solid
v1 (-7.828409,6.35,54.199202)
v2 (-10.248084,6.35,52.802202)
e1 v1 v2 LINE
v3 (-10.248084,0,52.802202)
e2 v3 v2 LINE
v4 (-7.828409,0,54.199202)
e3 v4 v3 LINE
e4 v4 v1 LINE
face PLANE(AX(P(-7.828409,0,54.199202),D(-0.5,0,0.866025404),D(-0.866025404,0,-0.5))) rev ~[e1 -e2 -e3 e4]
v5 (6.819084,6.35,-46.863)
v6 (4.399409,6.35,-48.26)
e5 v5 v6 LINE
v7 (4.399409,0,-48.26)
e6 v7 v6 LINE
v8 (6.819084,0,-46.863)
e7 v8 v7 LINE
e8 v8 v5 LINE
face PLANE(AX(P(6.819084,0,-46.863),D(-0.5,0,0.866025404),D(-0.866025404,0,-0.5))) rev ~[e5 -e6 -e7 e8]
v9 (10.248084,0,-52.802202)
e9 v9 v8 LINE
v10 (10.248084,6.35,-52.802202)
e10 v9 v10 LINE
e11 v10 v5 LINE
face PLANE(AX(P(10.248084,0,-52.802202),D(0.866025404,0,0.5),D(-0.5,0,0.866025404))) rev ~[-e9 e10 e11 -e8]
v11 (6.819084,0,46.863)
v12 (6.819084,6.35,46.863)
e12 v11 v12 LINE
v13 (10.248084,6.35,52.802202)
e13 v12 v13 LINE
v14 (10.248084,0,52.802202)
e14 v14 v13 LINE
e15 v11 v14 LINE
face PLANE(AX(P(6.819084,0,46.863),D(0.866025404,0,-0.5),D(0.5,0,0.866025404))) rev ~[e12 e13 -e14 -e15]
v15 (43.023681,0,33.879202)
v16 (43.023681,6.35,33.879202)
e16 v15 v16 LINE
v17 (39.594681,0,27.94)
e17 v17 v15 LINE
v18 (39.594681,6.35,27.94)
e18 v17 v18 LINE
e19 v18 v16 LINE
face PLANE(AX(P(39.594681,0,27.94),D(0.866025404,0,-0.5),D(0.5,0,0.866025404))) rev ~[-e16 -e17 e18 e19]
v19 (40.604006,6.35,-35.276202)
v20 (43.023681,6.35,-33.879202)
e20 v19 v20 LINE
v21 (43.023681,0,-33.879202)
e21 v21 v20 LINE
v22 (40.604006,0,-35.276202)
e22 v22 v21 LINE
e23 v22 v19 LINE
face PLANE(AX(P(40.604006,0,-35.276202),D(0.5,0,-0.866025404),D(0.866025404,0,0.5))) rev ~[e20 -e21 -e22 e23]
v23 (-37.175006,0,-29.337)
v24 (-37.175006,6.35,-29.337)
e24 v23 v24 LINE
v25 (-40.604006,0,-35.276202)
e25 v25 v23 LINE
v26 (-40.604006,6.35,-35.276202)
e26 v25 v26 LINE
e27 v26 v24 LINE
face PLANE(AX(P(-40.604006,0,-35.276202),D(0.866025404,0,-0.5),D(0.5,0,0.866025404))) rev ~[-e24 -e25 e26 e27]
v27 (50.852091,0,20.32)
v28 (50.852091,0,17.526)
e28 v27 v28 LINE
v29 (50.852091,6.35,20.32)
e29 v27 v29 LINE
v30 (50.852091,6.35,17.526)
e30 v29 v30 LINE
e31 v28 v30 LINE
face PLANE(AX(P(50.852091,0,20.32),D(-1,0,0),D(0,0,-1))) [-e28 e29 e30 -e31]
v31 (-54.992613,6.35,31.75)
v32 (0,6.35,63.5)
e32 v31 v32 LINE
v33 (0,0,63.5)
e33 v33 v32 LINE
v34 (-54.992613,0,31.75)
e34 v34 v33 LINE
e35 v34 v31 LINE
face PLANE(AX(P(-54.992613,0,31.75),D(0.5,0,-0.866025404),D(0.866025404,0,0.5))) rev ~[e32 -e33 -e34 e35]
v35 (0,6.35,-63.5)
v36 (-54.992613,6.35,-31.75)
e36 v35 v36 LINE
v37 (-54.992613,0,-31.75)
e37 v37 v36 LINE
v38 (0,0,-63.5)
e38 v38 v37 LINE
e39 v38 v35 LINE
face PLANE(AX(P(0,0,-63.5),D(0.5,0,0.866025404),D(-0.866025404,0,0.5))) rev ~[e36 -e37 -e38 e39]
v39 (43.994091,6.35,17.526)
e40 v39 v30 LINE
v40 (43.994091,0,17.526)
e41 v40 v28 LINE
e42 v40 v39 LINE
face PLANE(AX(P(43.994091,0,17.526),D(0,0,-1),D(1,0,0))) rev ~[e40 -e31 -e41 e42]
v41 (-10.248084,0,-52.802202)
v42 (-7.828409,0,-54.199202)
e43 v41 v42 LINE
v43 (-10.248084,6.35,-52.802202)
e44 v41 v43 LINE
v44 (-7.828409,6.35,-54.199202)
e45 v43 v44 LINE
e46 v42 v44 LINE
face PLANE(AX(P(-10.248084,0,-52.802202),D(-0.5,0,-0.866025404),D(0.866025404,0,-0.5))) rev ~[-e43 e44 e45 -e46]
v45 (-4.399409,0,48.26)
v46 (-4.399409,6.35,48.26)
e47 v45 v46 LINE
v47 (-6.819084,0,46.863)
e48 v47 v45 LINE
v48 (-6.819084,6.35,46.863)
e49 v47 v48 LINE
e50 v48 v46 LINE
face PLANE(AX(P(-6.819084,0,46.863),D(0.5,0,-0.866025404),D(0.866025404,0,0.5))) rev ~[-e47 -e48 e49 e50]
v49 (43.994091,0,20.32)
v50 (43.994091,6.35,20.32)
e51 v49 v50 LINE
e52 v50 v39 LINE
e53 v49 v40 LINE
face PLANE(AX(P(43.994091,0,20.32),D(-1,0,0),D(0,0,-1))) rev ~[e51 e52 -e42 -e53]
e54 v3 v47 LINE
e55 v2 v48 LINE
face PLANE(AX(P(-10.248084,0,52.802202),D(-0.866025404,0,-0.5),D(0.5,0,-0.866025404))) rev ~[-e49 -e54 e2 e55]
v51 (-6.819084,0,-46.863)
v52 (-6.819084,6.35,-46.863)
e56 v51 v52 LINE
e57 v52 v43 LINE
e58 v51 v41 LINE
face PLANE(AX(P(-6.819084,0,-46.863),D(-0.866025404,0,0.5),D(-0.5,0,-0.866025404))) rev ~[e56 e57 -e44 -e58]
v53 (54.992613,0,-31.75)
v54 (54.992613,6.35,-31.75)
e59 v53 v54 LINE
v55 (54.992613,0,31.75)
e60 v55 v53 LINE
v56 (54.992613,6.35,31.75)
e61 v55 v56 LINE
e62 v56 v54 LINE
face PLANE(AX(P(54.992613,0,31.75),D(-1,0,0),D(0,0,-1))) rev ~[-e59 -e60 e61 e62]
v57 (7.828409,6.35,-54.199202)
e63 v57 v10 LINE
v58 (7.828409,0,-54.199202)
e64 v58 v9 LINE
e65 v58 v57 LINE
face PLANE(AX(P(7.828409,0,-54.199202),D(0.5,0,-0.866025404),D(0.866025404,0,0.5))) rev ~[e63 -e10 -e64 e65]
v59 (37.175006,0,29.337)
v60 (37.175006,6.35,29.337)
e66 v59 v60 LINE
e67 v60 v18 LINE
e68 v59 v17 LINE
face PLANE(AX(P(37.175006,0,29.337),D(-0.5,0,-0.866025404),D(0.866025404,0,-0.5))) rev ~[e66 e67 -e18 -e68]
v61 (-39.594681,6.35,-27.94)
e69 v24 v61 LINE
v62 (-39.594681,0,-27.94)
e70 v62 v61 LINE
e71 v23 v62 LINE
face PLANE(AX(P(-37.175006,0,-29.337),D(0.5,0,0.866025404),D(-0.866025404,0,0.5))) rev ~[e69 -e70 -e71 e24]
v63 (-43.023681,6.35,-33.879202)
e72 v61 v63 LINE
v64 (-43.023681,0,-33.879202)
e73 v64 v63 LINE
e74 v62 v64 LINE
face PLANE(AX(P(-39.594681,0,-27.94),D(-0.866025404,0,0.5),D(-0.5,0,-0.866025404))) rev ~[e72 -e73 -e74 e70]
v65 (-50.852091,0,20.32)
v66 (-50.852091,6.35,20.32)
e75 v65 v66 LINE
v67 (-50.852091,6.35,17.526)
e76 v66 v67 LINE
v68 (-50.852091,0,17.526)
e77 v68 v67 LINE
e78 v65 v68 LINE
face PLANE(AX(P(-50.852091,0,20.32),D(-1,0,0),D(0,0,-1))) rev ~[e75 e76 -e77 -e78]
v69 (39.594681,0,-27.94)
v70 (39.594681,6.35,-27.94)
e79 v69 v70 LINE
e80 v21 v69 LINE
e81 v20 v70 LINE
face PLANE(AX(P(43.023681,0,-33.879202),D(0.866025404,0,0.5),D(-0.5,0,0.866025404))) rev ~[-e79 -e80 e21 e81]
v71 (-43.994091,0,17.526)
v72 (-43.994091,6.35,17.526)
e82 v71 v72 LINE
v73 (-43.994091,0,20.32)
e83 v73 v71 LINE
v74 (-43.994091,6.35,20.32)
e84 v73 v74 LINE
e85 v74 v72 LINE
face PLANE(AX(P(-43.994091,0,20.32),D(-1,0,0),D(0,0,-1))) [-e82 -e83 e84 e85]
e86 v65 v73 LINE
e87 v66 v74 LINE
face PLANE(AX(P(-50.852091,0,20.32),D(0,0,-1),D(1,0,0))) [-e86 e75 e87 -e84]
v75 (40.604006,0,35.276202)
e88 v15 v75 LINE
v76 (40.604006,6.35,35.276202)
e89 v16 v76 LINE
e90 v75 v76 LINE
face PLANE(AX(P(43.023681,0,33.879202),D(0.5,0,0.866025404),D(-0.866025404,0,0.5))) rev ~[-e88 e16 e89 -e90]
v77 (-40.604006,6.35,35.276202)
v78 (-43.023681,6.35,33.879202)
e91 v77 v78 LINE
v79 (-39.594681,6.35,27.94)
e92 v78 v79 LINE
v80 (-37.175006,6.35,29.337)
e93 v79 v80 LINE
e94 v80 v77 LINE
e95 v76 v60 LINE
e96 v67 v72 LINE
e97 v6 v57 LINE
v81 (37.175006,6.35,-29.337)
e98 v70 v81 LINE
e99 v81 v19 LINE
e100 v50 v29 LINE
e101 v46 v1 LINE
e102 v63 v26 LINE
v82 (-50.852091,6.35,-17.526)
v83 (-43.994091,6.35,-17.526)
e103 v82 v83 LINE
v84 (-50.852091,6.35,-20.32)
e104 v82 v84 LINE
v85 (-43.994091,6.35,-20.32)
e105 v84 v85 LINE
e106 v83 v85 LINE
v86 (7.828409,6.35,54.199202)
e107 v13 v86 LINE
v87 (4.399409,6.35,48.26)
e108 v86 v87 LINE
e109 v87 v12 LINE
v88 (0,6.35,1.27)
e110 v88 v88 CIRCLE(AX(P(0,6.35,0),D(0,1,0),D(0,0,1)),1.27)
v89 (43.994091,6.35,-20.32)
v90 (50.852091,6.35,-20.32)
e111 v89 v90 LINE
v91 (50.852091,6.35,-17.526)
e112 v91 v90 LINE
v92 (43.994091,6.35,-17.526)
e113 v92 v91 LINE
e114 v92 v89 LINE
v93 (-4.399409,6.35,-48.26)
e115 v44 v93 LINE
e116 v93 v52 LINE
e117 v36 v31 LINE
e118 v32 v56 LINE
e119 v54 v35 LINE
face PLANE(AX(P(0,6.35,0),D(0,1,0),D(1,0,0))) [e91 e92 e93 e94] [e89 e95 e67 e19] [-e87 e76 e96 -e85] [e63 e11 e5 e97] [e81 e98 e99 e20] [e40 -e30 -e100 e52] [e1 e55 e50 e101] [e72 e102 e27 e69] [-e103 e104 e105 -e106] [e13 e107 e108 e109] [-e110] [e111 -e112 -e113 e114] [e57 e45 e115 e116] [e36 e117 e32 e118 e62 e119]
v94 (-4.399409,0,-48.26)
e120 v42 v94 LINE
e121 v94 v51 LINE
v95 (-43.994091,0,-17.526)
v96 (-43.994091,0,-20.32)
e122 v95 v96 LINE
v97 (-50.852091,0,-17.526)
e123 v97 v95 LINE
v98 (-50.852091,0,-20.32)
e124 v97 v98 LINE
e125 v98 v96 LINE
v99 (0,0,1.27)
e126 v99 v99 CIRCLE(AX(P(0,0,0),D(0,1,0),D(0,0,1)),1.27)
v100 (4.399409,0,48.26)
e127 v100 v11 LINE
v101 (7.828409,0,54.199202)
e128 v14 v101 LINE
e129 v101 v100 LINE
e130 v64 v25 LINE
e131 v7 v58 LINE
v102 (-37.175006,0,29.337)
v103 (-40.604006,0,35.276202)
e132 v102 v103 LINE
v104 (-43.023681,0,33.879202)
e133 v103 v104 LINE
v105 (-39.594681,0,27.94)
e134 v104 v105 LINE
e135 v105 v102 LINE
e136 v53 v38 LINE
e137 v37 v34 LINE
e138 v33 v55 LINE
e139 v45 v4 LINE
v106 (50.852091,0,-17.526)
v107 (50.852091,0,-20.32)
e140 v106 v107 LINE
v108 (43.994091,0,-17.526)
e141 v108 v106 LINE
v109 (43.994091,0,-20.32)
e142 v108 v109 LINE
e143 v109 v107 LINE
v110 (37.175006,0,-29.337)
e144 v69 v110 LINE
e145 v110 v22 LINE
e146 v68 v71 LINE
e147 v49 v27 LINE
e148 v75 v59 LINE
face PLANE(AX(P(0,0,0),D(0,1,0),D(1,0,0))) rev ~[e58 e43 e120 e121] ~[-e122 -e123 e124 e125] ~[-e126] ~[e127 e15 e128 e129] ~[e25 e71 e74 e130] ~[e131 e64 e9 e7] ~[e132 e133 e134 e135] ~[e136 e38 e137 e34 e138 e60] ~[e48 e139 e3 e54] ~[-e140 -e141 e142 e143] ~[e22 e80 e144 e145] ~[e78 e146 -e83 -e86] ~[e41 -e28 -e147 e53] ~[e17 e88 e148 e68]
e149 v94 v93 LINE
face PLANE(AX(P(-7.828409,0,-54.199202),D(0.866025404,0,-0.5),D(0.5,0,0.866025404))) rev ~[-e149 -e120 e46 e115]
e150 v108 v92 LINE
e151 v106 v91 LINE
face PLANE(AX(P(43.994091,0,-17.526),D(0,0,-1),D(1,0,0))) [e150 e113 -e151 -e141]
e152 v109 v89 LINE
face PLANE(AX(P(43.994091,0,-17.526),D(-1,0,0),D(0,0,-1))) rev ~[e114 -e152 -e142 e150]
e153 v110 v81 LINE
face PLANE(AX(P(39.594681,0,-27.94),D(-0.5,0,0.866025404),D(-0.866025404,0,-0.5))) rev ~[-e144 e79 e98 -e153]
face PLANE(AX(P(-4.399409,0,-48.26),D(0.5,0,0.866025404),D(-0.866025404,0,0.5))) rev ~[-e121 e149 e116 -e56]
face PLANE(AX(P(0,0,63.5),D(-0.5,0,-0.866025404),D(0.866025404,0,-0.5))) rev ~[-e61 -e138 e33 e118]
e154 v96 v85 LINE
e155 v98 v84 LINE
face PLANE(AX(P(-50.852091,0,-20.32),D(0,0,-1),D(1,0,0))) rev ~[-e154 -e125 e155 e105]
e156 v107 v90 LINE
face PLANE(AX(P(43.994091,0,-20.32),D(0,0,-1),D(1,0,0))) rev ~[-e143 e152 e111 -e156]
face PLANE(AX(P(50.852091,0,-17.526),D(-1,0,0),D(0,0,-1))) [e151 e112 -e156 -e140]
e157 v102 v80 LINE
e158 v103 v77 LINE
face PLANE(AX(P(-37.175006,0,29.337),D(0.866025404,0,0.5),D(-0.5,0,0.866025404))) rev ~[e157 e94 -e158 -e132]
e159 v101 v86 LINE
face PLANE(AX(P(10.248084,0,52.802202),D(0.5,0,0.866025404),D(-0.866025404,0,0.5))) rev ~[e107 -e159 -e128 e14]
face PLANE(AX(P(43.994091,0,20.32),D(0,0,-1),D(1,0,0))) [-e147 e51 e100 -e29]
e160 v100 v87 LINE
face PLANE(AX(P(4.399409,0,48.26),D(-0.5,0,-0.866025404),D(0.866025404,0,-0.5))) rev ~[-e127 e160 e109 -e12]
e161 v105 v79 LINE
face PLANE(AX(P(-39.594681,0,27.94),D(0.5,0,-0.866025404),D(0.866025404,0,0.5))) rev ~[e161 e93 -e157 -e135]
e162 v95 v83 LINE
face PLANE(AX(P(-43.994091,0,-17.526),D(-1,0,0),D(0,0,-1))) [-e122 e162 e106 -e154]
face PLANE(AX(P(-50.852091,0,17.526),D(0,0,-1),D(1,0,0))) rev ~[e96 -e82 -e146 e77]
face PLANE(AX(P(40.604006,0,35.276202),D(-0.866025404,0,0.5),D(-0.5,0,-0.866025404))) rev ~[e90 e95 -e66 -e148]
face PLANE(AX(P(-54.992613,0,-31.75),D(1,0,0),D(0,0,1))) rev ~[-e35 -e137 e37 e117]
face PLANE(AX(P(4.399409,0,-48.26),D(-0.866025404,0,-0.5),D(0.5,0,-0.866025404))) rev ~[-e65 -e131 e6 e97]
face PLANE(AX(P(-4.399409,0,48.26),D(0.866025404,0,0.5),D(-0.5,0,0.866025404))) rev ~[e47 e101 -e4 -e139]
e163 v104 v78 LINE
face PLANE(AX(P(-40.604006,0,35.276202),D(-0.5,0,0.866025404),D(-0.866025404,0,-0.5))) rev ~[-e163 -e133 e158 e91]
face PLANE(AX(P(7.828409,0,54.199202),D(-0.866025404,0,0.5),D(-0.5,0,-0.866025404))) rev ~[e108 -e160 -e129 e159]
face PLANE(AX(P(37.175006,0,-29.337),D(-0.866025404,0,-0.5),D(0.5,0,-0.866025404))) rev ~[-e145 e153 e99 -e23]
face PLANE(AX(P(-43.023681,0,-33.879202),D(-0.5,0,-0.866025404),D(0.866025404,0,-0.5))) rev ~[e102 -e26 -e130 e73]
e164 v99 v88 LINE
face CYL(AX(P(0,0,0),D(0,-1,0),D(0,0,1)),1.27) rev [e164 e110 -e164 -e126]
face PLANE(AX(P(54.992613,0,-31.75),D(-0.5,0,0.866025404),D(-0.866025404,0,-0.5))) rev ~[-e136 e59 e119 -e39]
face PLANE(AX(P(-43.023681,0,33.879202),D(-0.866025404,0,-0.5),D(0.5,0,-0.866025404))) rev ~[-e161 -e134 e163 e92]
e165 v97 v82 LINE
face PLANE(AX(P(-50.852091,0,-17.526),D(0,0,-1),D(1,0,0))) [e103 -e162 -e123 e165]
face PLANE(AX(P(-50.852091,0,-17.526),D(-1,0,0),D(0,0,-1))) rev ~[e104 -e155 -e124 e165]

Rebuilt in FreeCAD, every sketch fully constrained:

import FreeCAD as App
import Part
import Sketcher
Q = App.Units.Quantity


def add_polygon(sketch, points):
    """Adds a closed chain of lines whose ends are joined by coincident constraints."""
    first, n = sketch.GeometryCount, len(points)
    for a, b in zip(points, points[1:] + points[:1]):
        sketch.addGeometry(Part.LineSegment(App.Vector(*a, 0), App.Vector(*b, 0)), False)
    for i in range(n):
        sketch.addConstraint(Sketcher.Constraint("Coincident", first + i, 2, first + (i + 1) % n, 1))

doc = App.newDocument("Part")
body = doc.addObject("PartDesign::Body", "Body")

sketch1 = doc.addObject("Sketcher::SketchObject", "Sketch")
body.addObject(sketch1)
sketch1.AttachmentSupport = (doc.XZ_Plane, [""])
sketch1.MapMode = "FlatFace"
add_polygon(sketch1, [(55, 31.8), (55, -31.8), (0, -63.5), (-55, -31.8), (-55, 31.8), (0, 63.5)])
add_polygon(sketch1, [(-43, 33.9), (-39.6, 27.9), (-37.2, 29.3), (-40.6, 35.3)])
add_polygon(sketch1, [(-10.2, 52.8), (-6.8, 46.9), (-4.4, 48.3), (-7.8, 54.2)])
add_polygon(sketch1, [(-44, 20.3), (-50.9, 20.3), (-50.9, 17.5), (-44, 17.5)])
add_polygon(sketch1, [(7.8, 54.2), (4.4, 48.3), (6.8, 46.9), (10.2, 52.8)])
add_polygon(sketch1, [(40.6, 35.3), (37.2, 29.3), (39.6, 27.9), (43, 33.9)])
add_polygon(sketch1, [(50.9, 20.3), (44, 20.3), (44, 17.5), (50.9, 17.5)])
add_polygon(sketch1, [(-44, -17.5), (-50.9, -17.5), (-50.9, -20.3), (-44, -20.3)])
sketch1.addGeometry(Part.Circle(App.Vector(0, 0, 0), App.Vector(0, 0, 1), 1.3), False)
add_polygon(sketch1, [(-40.6, -35.3), (-37.2, -29.3), (-39.6, -27.9), (-43, -33.9)])
add_polygon(sketch1, [(-7.8, -54.2), (-4.4, -48.3), (-6.8, -46.9), (-10.2, -52.8)])
add_polygon(sketch1, [(50.9, -17.5), (44, -17.5), (44, -20.3), (50.9, -20.3)])
add_polygon(sketch1, [(10.2, -52.8), (6.8, -46.9), (4.4, -48.3), (7.8, -54.2)])
add_polygon(sketch1, [(43, -33.9), (39.6, -27.9), (37.2, -29.3), (40.6, -35.3)])
sketch1.addConstraint(Sketcher.Constraint("Vertical", 0))
sketch1.addConstraint(Sketcher.Constraint("Vertical", 3))
sketch1.addConstraint(Sketcher.Constraint("Horizontal", 14))
sketch1.addConstraint(Sketcher.Constraint("Vertical", 15))
sketch1.addConstraint(Sketcher.Constraint("Horizontal", 16))
sketch1.addConstraint(Sketcher.Constraint("Vertical", 17))
sketch1.addConstraint(Sketcher.Constraint("Horizontal", 26))
sketch1.addConstraint(Sketcher.Constraint("Vertical", 27))
sketch1.addConstraint(Sketcher.Constraint("Horizontal", 28))
sketch1.addConstraint(Sketcher.Constraint("Vertical", 29))
sketch1.addConstraint(Sketcher.Constraint("Horizontal", 30))
sketch1.addConstraint(Sketcher.Constraint("Vertical", 31))
sketch1.addConstraint(Sketcher.Constraint("Horizontal", 32))
sketch1.addConstraint(Sketcher.Constraint("Vertical", 33))
sketch1.addConstraint(Sketcher.Constraint("Horizontal", 43))
sketch1.addConstraint(Sketcher.Constraint("Vertical", 44))
sketch1.addConstraint(Sketcher.Constraint("Horizontal", 45))
sketch1.addConstraint(Sketcher.Constraint("Vertical", 46))
sketch1.addConstraint(Sketcher.Constraint("Coincident", 34, 3, -1, 1))
sketch1.addConstraint(Sketcher.Constraint("Symmetric", 0, 2, 3, 2, -1, 1))
sketch1.addConstraint(Sketcher.Constraint("Symmetric", 1, 2, 4, 2, -1, 1))
sketch1.addConstraint(Sketcher.Constraint("Symmetric", 28, 2, 30, 2, -1, 1))
sketch1.addConstraint(Sketcher.Constraint("Symmetric", 26, 2, 32, 2, -1, 1))
sketch1.addConstraint(Sketcher.Constraint("Symmetric", 22, 2, 35, 2, -1, 1))
sketch1.addConstraint(Sketcher.Constraint("Symmetric", 23, 2, 36, 2, -1, 1))
sketch1.addConstraint(Sketcher.Constraint("Symmetric", 24, 2, 37, 2, -1, 1))
sketch1.addConstraint(Sketcher.Constraint("Symmetric", 25, 2, 38, 2, -1, 1))
sketch1.addConstraint(Sketcher.Constraint("Symmetric", 18, 2, 39, 2, -1, 1))
sketch1.addConstraint(Sketcher.Constraint("Symmetric", 19, 2, 40, 2, -1, 1))
sketch1.addConstraint(Sketcher.Constraint("Symmetric", 20, 2, 41, 2, -1, 1))
sketch1.addConstraint(Sketcher.Constraint("Symmetric", 21, 2, 42, 2, -1, 1))
sketch1.addConstraint(Sketcher.Constraint("Symmetric", 16, 2, 43, 2, -1, 1))
sketch1.addConstraint(Sketcher.Constraint("Symmetric", 14, 2, 45, 2, -1, 1))
sketch1.addConstraint(Sketcher.Constraint("Symmetric", 10, 2, 47, 2, -1, 1))
sketch1.addConstraint(Sketcher.Constraint("Symmetric", 11, 2, 48, 2, -1, 1))
sketch1.addConstraint(Sketcher.Constraint("Symmetric", 12, 2, 49, 2, -1, 1))
sketch1.addConstraint(Sketcher.Constraint("Symmetric", 13, 2, 50, 2, -1, 1))
sketch1.addConstraint(Sketcher.Constraint("Symmetric", 6, 2, 51, 2, -1, 1))
sketch1.addConstraint(Sketcher.Constraint("Symmetric", 7, 2, 52, 2, -1, 1))
sketch1.addConstraint(Sketcher.Constraint("Symmetric", 8, 2, 53, 2, -1, 1))
sketch1.addConstraint(Sketcher.Constraint("Symmetric", 9, 2, 54, 2, -1, 1))
sketch1.addConstraint(Sketcher.Constraint("Symmetric", 11, 2, 18, 2, -2))
sketch1.addConstraint(Sketcher.Constraint("Symmetric", 10, 2, 19, 2, -2))
sketch1.addConstraint(Sketcher.Constraint("Symmetric", 13, 2, 20, 2, -2))
sketch1.addConstraint(Sketcher.Constraint("Symmetric", 12, 2, 21, 2, -2))
sketch1.addConstraint(Sketcher.Constraint("Symmetric", 7, 2, 22, 2, -2))
sketch1.addConstraint(Sketcher.Constraint("Symmetric", 6, 2, 23, 2, -2))
sketch1.addConstraint(Sketcher.Constraint("Symmetric", 9, 2, 24, 2, -2))
sketch1.addConstraint(Sketcher.Constraint("Symmetric", 8, 2, 25, 2, -2))
sketch1.addConstraint(Sketcher.Constraint("Symmetric", 17, 2, 26, 2, -2))
sketch1.addConstraint(Sketcher.Constraint("Symmetric", 15, 2, 28, 2, -2))
sketch1.addConstraint(Sketcher.Constraint("PointOnObject", 1, 2, -2))
sketch1.addConstraint(Sketcher.Constraint("Parallel", 2, 5))
sketch1.addConstraint(Sketcher.Constraint("Perpendicular", 4, 6))
sketch1.addConstraint(Sketcher.Constraint("Perpendicular", 6, 7))
sketch1.addConstraint(Sketcher.Constraint("Perpendicular", 7, 8))
sketch1.addConstraint(Sketcher.Constraint("Perpendicular", 8, 9))
sketch1.addConstraint(Sketcher.Constraint("Perpendicular", 9, 10))
sketch1.addConstraint(Sketcher.Constraint("Perpendicular", 10, 11))
sketch1.addConstraint(Sketcher.Constraint("Perpendicular", 11, 12))
sketch1.addConstraint(Sketcher.Constraint("Perpendicular", 12, 13))
sketch1.addConstraint(Sketcher.Constraint("Perpendicular", 5, 18))
sketch1.addConstraint(Sketcher.Constraint("Equal", 8, 10))
sketch1.addConstraint(Sketcher.Constraint("Equal", 9, 11))
sketch1.addConstraint(Sketcher.Constraint("Diameter", 34, Q("0.1 in")))
sketch1.addConstraint(Sketcher.Constraint("DistanceY", 0, 2, 0, 1, Q("2.5 in")))
sketch1.addConstraint(Sketcher.Constraint("Angle", 1, Q("-150 deg")))
sketch1.addConstraint(Sketcher.Constraint("DistanceY", 1, 2, 4, 2, Q("5 in")))
sketch1.addConstraint(Sketcher.Constraint("DistanceX", 14, 2, 14, 1, Q("0.27 in")))
sketch1.addConstraint(Sketcher.Constraint("DistanceY", 15, 2, 15, 1, Q("0.11 in")))
sketch1.addConstraint(Sketcher.Constraint("DistanceY", -1, 1, 6, 2, Q("1.1 in")))
sketch1.addConstraint(Sketcher.Constraint("DistanceY", -1, 1, 11, 2, Q("1.9 in")))
sketch1.addConstraint(Sketcher.Constraint("DistanceY", -1, 1, 14, 2, Q("0.8 in")))
sketch1.addConstraint(Sketcher.Constraint("Distance", 6, Q("0.27 in")))
sketch1.addConstraint(Sketcher.Constraint("Distance", 7, Q("0.11 in")))
sketch1.addConstraint(Sketcher.Constraint("DistanceX", 6, 2, -1, 1, 39.594681))
sketch1.addConstraint(Sketcher.Constraint("DistanceX", 11, 2, -1, 1, 4.399409))
sketch1.addConstraint(Sketcher.Constraint("DistanceX", 14, 2, -1, 1, 50.852091))
pad1 = doc.addObject("PartDesign::Pad", "Pad")
body.addObject(pad1)
pad1.Profile = sketch1
pad1.Length = Q("0.25 in")
pad1.Reversed = True

doc.recompute()
